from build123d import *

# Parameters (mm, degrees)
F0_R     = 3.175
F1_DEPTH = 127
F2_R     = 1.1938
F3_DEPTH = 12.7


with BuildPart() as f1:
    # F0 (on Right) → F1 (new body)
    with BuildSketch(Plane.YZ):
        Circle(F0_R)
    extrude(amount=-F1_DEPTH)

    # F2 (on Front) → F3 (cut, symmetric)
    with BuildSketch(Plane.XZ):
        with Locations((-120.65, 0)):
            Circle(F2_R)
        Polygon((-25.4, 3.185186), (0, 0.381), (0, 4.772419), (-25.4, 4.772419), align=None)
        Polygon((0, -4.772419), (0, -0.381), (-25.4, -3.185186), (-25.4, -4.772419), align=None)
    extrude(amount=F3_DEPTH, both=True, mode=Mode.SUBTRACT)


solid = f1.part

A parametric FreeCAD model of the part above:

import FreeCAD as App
import Part
import Sketcher
Q = App.Units.Quantity


def add_polygon(sketch, points):
    """Adds a closed chain of lines whose ends are joined by coincident constraints."""
    first, n = sketch.GeometryCount, len(points)
    for a, b in zip(points, points[1:] + points[:1]):
        sketch.addGeometry(Part.LineSegment(App.Vector(*a, 0), App.Vector(*b, 0)), False)
    for i in range(n):
        sketch.addConstraint(Sketcher.Constraint("Coincident", first + i, 2, first + (i + 1) % n, 1))

doc = App.newDocument("Part")
body = doc.addObject("PartDesign::Body", "Body")

# Sketch on YZ plane
sketch1 = doc.addObject("Sketcher::SketchObject", "Sketch")
body.addObject(sketch1)
sketch1.AttachmentSupport = (doc.YZ_Plane, [""])
sketch1.MapMode = "FlatFace"
sketch1.addGeometry(Part.Circle(App.Vector(0, 0, 0), App.Vector(0, 0, 1), 3.2), False)
sketch1.addConstraint([
    Sketcher.Constraint("Coincident", 0, 3, -1, 1),
    Sketcher.Constraint("Diameter", 0, Q("0.25 in")),
])
pad1 = doc.addObject("PartDesign::Pad", "Pad")
body.addObject(pad1)
pad1.Profile = sketch1
pad1.Length = Q("5 in")
pad1.Reversed = True

# Sketch on XZ plane
sketch2 = doc.addObject("Sketcher::SketchObject", "Sketch001")
body.addObject(sketch2)
sketch2.AttachmentSupport = (doc.XZ_Plane, [""])
sketch2.MapMode = "FlatFace"
sketch2.addGeometry(Part.Circle(App.Vector(-120.7, 0, 0), App.Vector(0, 0, 1), 1.2), False)  # 0
add_polygon(sketch2, [(-25.4, 3.2), (0, 0.4), (0, 4.8), (-25.4, 4.8)])  # lines 1-4
add_polygon(sketch2, [(0, -4.8), (0, -0.4), (-25.4, -3.2), (-25.4, -4.8)])  # lines 5-8
sketch2.addConstraint([
    Sketcher.Constraint("Vertical", 2),
    Sketcher.Constraint("Horizontal", 3),
    Sketcher.Constraint("Vertical", 4),
    Sketcher.Constraint("Vertical", 5),
    Sketcher.Constraint("Vertical", 7),
    Sketcher.Constraint("Horizontal", 8),
    Sketcher.Constraint("Symmetric", 1, 2, 5, 2, -1, 1),
    Sketcher.Constraint("Symmetric", 4, 2, 6, 2, -1),
    Sketcher.Constraint("Symmetric", 2, 2, 8, 2, -1),
    Sketcher.Constraint("PointOnObject", 0, 3, -1),
    Sketcher.Constraint("DistanceX", 3, 2, 3, 1, Q("1 in")),
    Sketcher.Constraint("Diameter", 0, Q("0.094 in")),
    Sketcher.Constraint("Angle", 1, Q("-6.3 deg")),
    Sketcher.Constraint("DistanceX", 0, 3, -1, 1, Q("4.75 in")),
    Sketcher.Constraint("DistanceY", 5, 2, 1, 2, Q("0.03 in")),
    Sketcher.Constraint("DistanceY", 2, 1, 2, 2, Q("4.391419 mm")),
])
pocket1 = doc.addObject("PartDesign::Pocket", "Pocket")
body.addObject(pocket1)
pocket1.Profile = sketch2
pocket1.Length = Q("1 in")
pocket1.Midplane = True

doc.recompute()
